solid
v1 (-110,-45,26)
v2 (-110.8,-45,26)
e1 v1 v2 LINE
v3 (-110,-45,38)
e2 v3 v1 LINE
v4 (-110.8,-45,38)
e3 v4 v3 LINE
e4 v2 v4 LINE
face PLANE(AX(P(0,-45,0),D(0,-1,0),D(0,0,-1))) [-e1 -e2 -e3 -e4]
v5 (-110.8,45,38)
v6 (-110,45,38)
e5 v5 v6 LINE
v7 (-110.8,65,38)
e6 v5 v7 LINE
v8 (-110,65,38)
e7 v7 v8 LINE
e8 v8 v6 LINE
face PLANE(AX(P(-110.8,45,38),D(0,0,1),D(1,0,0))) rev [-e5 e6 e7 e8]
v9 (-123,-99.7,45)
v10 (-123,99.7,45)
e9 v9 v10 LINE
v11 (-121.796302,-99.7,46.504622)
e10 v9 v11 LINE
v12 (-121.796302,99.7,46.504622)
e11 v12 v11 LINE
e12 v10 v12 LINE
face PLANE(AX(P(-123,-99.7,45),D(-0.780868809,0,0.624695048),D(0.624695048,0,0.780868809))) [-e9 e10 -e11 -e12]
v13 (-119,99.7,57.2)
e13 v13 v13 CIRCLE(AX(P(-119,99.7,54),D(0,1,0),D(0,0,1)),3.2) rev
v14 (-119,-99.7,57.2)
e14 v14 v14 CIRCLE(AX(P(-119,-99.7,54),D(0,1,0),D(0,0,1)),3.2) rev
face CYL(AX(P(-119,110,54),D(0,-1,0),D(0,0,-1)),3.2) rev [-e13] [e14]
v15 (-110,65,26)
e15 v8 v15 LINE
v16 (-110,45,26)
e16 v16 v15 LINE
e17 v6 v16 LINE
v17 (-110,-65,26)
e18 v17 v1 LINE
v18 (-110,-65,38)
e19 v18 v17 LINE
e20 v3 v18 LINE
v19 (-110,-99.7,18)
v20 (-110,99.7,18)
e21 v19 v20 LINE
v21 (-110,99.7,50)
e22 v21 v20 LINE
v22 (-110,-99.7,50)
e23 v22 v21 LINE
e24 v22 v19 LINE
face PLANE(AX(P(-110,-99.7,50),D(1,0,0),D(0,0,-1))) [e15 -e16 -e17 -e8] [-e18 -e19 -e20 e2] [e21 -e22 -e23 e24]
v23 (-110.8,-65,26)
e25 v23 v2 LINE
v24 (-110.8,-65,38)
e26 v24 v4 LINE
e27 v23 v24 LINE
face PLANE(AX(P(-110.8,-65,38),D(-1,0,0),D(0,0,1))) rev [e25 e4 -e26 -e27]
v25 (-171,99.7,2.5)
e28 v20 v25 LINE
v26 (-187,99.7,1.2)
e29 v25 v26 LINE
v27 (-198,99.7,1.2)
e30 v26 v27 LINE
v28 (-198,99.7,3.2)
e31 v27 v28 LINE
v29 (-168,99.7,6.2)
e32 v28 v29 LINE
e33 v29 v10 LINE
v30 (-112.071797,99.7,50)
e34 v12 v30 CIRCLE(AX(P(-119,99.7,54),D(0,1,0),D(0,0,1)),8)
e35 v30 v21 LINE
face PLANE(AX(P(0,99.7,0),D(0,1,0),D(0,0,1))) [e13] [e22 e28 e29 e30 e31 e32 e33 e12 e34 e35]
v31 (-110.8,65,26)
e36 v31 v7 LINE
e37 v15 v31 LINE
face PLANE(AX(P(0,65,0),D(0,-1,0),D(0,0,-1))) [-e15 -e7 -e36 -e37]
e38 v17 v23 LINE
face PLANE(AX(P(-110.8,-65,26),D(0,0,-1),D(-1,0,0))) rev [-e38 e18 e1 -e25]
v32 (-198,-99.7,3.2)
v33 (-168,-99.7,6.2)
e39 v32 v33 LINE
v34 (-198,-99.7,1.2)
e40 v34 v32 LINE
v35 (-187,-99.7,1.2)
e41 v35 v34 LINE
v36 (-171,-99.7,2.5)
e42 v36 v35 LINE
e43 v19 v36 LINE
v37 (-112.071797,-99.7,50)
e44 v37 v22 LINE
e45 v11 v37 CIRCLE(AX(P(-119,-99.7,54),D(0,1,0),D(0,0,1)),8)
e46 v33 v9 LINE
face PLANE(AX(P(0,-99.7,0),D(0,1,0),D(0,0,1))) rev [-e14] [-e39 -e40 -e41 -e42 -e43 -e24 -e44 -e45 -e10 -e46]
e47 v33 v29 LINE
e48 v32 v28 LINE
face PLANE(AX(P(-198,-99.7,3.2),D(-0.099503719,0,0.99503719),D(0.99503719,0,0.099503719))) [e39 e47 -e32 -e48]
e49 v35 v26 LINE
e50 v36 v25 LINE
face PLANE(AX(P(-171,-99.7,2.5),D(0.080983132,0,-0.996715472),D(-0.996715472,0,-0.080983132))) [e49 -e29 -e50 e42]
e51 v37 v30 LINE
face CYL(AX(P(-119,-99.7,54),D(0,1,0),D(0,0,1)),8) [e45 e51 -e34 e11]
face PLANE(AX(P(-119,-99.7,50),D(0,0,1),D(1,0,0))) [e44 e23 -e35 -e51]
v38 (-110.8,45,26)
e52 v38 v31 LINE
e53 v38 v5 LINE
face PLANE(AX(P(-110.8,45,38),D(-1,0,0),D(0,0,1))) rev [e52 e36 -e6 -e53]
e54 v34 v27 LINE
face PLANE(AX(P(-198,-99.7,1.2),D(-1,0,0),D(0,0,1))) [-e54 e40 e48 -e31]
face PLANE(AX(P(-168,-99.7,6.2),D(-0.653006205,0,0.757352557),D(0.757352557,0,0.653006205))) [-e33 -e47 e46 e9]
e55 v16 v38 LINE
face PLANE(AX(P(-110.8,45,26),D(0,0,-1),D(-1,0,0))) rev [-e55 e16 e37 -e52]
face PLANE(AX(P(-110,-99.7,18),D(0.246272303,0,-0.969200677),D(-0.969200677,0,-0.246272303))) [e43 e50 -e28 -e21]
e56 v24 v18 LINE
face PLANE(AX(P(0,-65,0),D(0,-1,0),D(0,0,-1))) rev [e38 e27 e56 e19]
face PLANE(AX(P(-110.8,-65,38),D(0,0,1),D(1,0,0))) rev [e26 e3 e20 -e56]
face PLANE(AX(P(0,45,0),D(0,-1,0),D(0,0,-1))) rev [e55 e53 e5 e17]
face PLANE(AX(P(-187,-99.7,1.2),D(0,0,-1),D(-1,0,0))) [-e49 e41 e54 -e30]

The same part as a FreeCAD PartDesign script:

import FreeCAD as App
import Part
import Sketcher

V = App.Vector


def add_polygon(sketch, points):
    """Adds a closed chain of lines whose ends are joined by coincident constraints."""
    first, n = sketch.GeometryCount, len(points)
    for a, b in zip(points, points[1:] + points[:1]):
        sketch.addGeometry(Part.LineSegment(App.Vector(*a, 0), App.Vector(*b, 0)), False)
    for i in range(n):
        sketch.addConstraint(Sketcher.Constraint("Coincident", first + i, 2, first + (i + 1) % n, 1))

doc = App.newDocument("Part")
body = doc.addObject("PartDesign::Body", "Body")

# Sketch on XZ plane
sketch1 = body.newObject("Sketcher::SketchObject", "Sketch")
sketch1.AttachmentSupport = (doc.getObject("XZ_Plane"), [""])
sketch1.MapMode = "FlatFace"
add_polygon(sketch1, [(-198, 1.2), (-198, 3.2), (-168, 6.2), (-123, 45), (-119, 50), (-110, 50), (-110, 18), (-171, 2.5), (-187, 1.2)])  # lines 0-8
sketch1.addConstraint(Sketcher.Constraint("Vertical", 0))
sketch1.addConstraint(Sketcher.Constraint("Horizontal", 4))
sketch1.addConstraint(Sketcher.Constraint("Vertical", 5))
sketch1.addConstraint(Sketcher.Constraint("Horizontal", 8))
sketch1.addConstraint(Sketcher.Constraint("DistanceX", 4, 1, 4, 2, 9.0))
sketch1.addConstraint(Sketcher.Constraint("DistanceX", 8, 2, 8, 1, 11.0))
sketch1.addConstraint(Sketcher.Constraint("DistanceY", 0, 1, 0, 2, 2.0))
sketch1.addConstraint(Sketcher.Constraint("DistanceY", 5, 2, 5, 1, 32.0))
sketch1.addConstraint(Sketcher.Constraint("DistanceX", 0, 2, -1, 1, 198.0))
sketch1.addConstraint(Sketcher.Constraint("DistanceX", 1, 2, -1, 1, 168.0))
sketch1.addConstraint(Sketcher.Constraint("DistanceX", 2, 2, -1, 1, 123.0))
sketch1.addConstraint(Sketcher.Constraint("DistanceY", -1, 1, 2, 2, 45.0))
sketch1.addConstraint(Sketcher.Constraint("DistanceX", 3, 2, -1, 1, 119.0))
sketch1.addConstraint(Sketcher.Constraint("DistanceY", -1, 1, 3, 2, 50.0))
sketch1.addConstraint(Sketcher.Constraint("DistanceX", 6, 2, -1, 1, 171.0))
sketch1.addConstraint(Sketcher.Constraint("DistanceY", 0, 2, 1, 2, 3.0))
sketch1.addConstraint(Sketcher.Constraint("DistanceY", -1, 1, 0, 2, 3.2))
sketch1.addConstraint(Sketcher.Constraint("DistanceY", -1, 1, 6, 2, 2.5))
pad1 = body.newObject("PartDesign::Pad", "Pad")
pad1.Profile = sketch1
pad1.Type = "TwoLengths"
pad1.Length = 99.7
pad1.Length2 = 99.7
pad1.Reversed = True

# Sketch on XZ plane
sketch2 = body.newObject("Sketcher::SketchObject", "Sketch001")
sketch2.AttachmentSupport = (doc.getObject("XZ_Plane"), [""])
sketch2.MapMode = "FlatFace"
sketch2.addGeometry(Part.Circle(V(-119, 54, 0), V(0, 0, 1), 8), False)
sketch2.addConstraint(Sketcher.Constraint("Diameter", 0, 16.0))
sketch2.addConstraint(Sketcher.Constraint("DistanceX", 0, 3, -1, 1, 119.0))
sketch2.addConstraint(Sketcher.Constraint("DistanceY", -1, 1, 0, 3, 54.0))
pad2 = body.newObject("PartDesign::Pad", "Pad001")
pad2.Profile = sketch2
pad2.Type = "TwoLengths"
pad2.Length = 99.7
pad2.Length2 = 99.7
pad2.Reversed = True

# Sketch on XZ plane
sketch3 = body.newObject("Sketcher::SketchObject", "Sketch002")
sketch3.AttachmentSupport = (doc.getObject("XZ_Plane"), [""])
sketch3.MapMode = "FlatFace"
sketch3.addGeometry(Part.Circle(V(-119, 54, 0), V(0, 0, 1), 3.2), False)
sketch3.addConstraint(Sketcher.Constraint("Diameter", 0, 6.4))
sketch3.addConstraint(Sketcher.Constraint("DistanceX", 0, 3, -1, 1, 119.0))
sketch3.addConstraint(Sketcher.Constraint("DistanceY", -1, 1, 0, 3, 54.0))
pocket1 = body.newObject("PartDesign::Pocket", "Pocket")
pocket1.Profile = sketch3
pocket1.Type = "ThroughAll"
pocket1.Midplane = True

# Sketch on XZ plane
sketch4 = body.newObject("Sketcher::SketchObject", "Sketch003")
sketch4.AttachmentSupport = (doc.getObject("XZ_Plane"), [""])
sketch4.MapMode = "FlatFace"
sketch4.AttachmentOffset = App.Placement(V(0, 0, 45), App.Rotation())
add_polygon(sketch4, [(-110.8, 26), (-110.8, 38), (-110, 38), (-110, 26)])  # lines 0-3
sketch4.addConstraint(Sketcher.Constraint("Vertical", 0))
sketch4.addConstraint(Sketcher.Constraint("Horizontal", 1))
sketch4.addConstraint(Sketcher.Constraint("Vertical", 2))
sketch4.addConstraint(Sketcher.Constraint("Horizontal", 3))
sketch4.addConstraint(Sketcher.Constraint("DistanceY", 0, 1, 0, 2, 12.0))
sketch4.addConstraint(Sketcher.Constraint("DistanceY", -1, 1, 0, 2, 38.0))
sketch4.addConstraint(Sketcher.Constraint("DistanceX", 1, 1, 1, 2, 0.81))
sketch4.addConstraint(Sketcher.Constraint("DistanceX", 0, 2, -1, 1, 110.8))
pocket2 = body.newObject("PartDesign::Pocket", "Pocket001")
pocket2.Profile = sketch4
pocket2.Length = 20
pocket2.Reversed = True

# Sketch on XZ plane
sketch5 = body.newObject("Sketcher::SketchObject", "Sketch004")
sketch5.AttachmentSupport = (doc.getObject("XZ_Plane"), [""])
sketch5.MapMode = "FlatFace"
sketch5.AttachmentOffset = App.Placement(V(0, 0, -65), App.Rotation())
add_polygon(sketch5, [(-110.8, 26), (-110.8, 38), (-110, 38), (-110, 26)])  # lines 0-3
sketch5.addConstraint(Sketcher.Constraint("Vertical", 0))
sketch5.addConstraint(Sketcher.Constraint("Horizontal", 1))
sketch5.addConstraint(Sketcher.Constraint("Vertical", 2))
sketch5.addConstraint(Sketcher.Constraint("Horizontal", 3))
sketch5.addConstraint(Sketcher.Constraint("DistanceY", 0, 1, 0, 2, 12.0))
sketch5.addConstraint(Sketcher.Constraint("DistanceY", -1, 1, 0, 2, 38.0))
sketch5.addConstraint(Sketcher.Constraint("DistanceX", 1, 1, 1, 2, 0.81))
sketch5.addConstraint(Sketcher.Constraint("DistanceX", 0, 2, -1, 1, 110.8))
pocket3 = body.newObject("PartDesign::Pocket", "Pocket002")
pocket3.Profile = sketch5
pocket3.Length = 20
pocket3.Reversed = True

doc.recompute()
